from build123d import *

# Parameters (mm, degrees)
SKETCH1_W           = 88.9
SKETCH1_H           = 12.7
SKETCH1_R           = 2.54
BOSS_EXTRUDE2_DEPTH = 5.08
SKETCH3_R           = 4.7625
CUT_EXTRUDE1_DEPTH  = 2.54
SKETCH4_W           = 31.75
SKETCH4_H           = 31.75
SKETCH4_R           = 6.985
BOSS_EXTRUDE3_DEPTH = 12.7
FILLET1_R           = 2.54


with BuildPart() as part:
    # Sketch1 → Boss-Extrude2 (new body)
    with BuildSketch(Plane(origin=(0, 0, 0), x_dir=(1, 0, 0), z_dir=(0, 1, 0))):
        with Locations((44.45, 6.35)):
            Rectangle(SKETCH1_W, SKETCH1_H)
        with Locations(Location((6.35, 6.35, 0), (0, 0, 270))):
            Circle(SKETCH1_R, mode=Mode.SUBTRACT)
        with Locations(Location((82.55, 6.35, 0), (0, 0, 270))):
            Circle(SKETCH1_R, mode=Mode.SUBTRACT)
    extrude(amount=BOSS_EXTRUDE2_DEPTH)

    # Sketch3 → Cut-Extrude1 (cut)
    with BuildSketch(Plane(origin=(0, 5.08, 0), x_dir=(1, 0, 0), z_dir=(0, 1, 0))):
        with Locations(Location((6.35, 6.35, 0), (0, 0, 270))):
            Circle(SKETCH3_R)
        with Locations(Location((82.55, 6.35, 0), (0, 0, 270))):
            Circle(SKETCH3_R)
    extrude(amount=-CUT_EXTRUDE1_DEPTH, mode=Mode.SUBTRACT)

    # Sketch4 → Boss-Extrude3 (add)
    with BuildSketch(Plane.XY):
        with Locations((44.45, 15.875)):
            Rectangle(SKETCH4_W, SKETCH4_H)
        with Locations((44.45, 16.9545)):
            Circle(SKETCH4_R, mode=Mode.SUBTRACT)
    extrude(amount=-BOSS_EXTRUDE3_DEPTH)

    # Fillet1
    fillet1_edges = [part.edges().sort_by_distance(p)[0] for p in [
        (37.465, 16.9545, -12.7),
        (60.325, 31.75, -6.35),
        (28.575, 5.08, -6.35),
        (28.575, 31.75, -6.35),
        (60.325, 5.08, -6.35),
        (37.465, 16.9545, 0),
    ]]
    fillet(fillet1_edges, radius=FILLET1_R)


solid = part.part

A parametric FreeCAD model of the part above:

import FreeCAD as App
import Part
import Sketcher

V = App.Vector
Q = App.Units.Quantity


def edges_at(feature, points):
    """Names of the edges that pass closest to the given points."""
    edges = feature.Shape.Edges
    near = lambda p: min(range(len(edges)), key=lambda i: edges[i].distToShape(Part.Vertex(*p))[0])
    return sorted({f"Edge{near(p) + 1}" for p in points})

doc = App.newDocument("Part")
params = doc.addObject("Spreadsheet::Sheet", "Params")
for row, (alias, value) in enumerate([
    ("sketch1_diameter", "0.2 in"),
    ("sketch1_width", "3.5 in"),
    ("sketch1_height", "0.5 in"),
    ("pad1_length", "0.2 in"),
    ("sketch2_diameter", "0.375 in"),
    ("pocket1_length", "0.1 in"),
    ("sketch3_diameter", "0.55 in"),
    ("sketch3_width", "1.25 in"),
    ("pad2_length", "0.5 in"),
    ("fillet_radius", "0.1 in"),
], start=1):
    params.set(f"A{row}", alias)
    params.set(f"B{row}", "=" + value)
    params.setAlias(f"B{row}", alias)

body = doc.addObject("PartDesign::Body", "Body")

sketch1 = body.newObject("Sketcher::SketchObject", "Sketch")
sketch1.AttachmentSupport = (doc.getObject("XZ_Plane"), [""])
sketch1.MapMode = "FlatFace"
sketch1.addGeometry([
    Part.LineSegment(V(0, -12.7, 0), V(0, 0, 0)),
    Part.LineSegment(V(0, 0, 0), V(88.9, 0, 0)),
    Part.LineSegment(V(88.9, 0, 0), V(88.9, -12.7, 0)),
    Part.LineSegment(V(88.9, -12.7, 0), V(0, -12.7, 0)),
    Part.Circle(V(6.3, -6.3, 0), V(0, 0, 1), 2.5),
    Part.Circle(V(82.5, -6.3, 0), V(0, 0, 1), 2.5),
], False)
sketch1.addConstraint([
    Sketcher.Constraint("Coincident", 0, 2, 1, 1),
    Sketcher.Constraint("Coincident", 1, 2, 2, 1),
    Sketcher.Constraint("Coincident", 2, 2, 3, 1),
    Sketcher.Constraint("Coincident", 3, 2, 0, 1),
    Sketcher.Constraint("Vertical", 0),
    Sketcher.Constraint("Horizontal", 1),
    Sketcher.Constraint("Vertical", 2),
    Sketcher.Constraint("Horizontal", 3),
    Sketcher.Constraint("Coincident", 0, 2, -1, 1),
    Sketcher.Constraint("Equal", 4, 5),
    Sketcher.Constraint("Horizontal", 4, 3, 5, 3),
    Sketcher.Constraint("Diameter", 4, Q("0.2 in")),
    Sketcher.Constraint("DistanceX", 1, 1, 1, 2, Q("3.5 in")),
    Sketcher.Constraint("DistanceY", 0, 1, 0, 2, Q("0.5 in")),
    Sketcher.Constraint("DistanceX", 4, 3, 5, 3, Q("3 in")),
    Sketcher.Constraint("DistanceX", -1, 1, 4, 3, Q("0.25 in")),
    Sketcher.Constraint("DistanceY", 4, 3, -1, 1, Q("0.25 in")),
])
sketch1.setExpression("Constraints[11]", "Params.sketch1_diameter")
sketch1.setExpression("Constraints[12]", "Params.sketch1_width")
sketch1.setExpression("Constraints[13]", "Params.sketch1_height")
pad1 = body.newObject("PartDesign::Pad", "Pad")
pad1.Profile = sketch1
pad1.setExpression("Length", "Params.pad1_length")
pad1.Reversed = True

sketch2 = body.newObject("Sketcher::SketchObject", "Sketch001")
sketch2.AttachmentSupport = (doc.getObject("XZ_Plane"), [""])
sketch2.MapMode = "FlatFace"
sketch2.AttachmentOffset = App.Placement(V(0, 0, -0.2 * 25.4), App.Rotation())
sketch2.addGeometry([
    Part.Circle(V(6.3, -6.3, 0), V(0, 0, 1), 4.8),
    Part.Circle(V(82.5, -6.3, 0), V(0, 0, 1), 4.8),
], False)
sketch2.addConstraint([
    Sketcher.Constraint("Equal", 0, 1),
    Sketcher.Constraint("Horizontal", 0, 3, 1, 3),
    Sketcher.Constraint("Diameter", 0, Q("0.375 in")),
    Sketcher.Constraint("DistanceX", 0, 3, 1, 3, Q("3 in")),
    Sketcher.Constraint("DistanceX", -1, 1, 0, 3, Q("0.25 in")),
    Sketcher.Constraint("DistanceY", 0, 3, -1, 1, Q("0.25 in")),
])
sketch2.setExpression("Constraints[2]", "Params.sketch2_diameter")
pocket1 = body.newObject("PartDesign::Pocket", "Pocket")
pocket1.Profile = sketch2
pocket1.setExpression("Length", "Params.pocket1_length")
pocket1.Reversed = True

sketch3 = body.newObject("Sketcher::SketchObject", "Sketch002")
sketch3.AttachmentSupport = (doc.getObject("XY_Plane"), [""])
sketch3.MapMode = "FlatFace"
sketch3.addGeometry([
    Part.LineSegment(V(29, 32, 0), V(29, 0, 0)),
    Part.LineSegment(V(29, 0, 0), V(60, 0, 0)),
    Part.LineSegment(V(60, 0, 0), V(60, 32, 0)),
    Part.LineSegment(V(60, 32, 0), V(29, 32, 0)),
    Part.Circle(V(44, 17, 0), V(0, 0, 1), 7),
], False)
sketch3.addConstraint([
    Sketcher.Constraint("Coincident", 0, 2, 1, 1),
    Sketcher.Constraint("Coincident", 1, 2, 2, 1),
    Sketcher.Constraint("Coincident", 2, 2, 3, 1),
    Sketcher.Constraint("Coincident", 3, 2, 0, 1),
    Sketcher.Constraint("Vertical", 0),
    Sketcher.Constraint("Horizontal", 1),
    Sketcher.Constraint("Vertical", 2),
    Sketcher.Constraint("Horizontal", 3),
    Sketcher.Constraint("PointOnObject", 0, 2, -1),
    Sketcher.Constraint("Equal", 3, 0),
    Sketcher.Constraint("Diameter", 4, Q("0.55 in")),
    Sketcher.Constraint("DistanceX", 1, 1, 1, 2, Q("1.25 in")),
    Sketcher.Constraint("DistanceX", -1, 1, 4, 3, Q("1.75 in")),
    Sketcher.Constraint("DistanceX", -1, 1, 0, 2, Q("1.125 in")),
    Sketcher.Constraint("DistanceY", -1, 1, 4, 3, Q("0.6675 in")),
])
sketch3.setExpression("Constraints[10]", "Params.sketch3_diameter")
sketch3.setExpression("Constraints[11]", "Params.sketch3_width")
pad2 = body.newObject("PartDesign::Pad", "Pad001")
pad2.Profile = sketch3
pad2.setExpression("Length", "Params.pad2_length")
pad2.Reversed = True
doc.recompute()

fillet = body.newObject("PartDesign::Fillet", "Fillet")
fillet.Base = (pad2, edges_at(pad2, [
    (37.465, 16.954, -12.7),
    (60.325, 31.75, -6.35),
    (28.575, 5.08, -6.35),
    (28.575, 31.75, -6.35),
    (60.325, 5.08, -6.35),
    (37.465, 16.954, 0),
]))
fillet.setExpression("Radius", "Params.fillet_radius")

doc.recompute()
